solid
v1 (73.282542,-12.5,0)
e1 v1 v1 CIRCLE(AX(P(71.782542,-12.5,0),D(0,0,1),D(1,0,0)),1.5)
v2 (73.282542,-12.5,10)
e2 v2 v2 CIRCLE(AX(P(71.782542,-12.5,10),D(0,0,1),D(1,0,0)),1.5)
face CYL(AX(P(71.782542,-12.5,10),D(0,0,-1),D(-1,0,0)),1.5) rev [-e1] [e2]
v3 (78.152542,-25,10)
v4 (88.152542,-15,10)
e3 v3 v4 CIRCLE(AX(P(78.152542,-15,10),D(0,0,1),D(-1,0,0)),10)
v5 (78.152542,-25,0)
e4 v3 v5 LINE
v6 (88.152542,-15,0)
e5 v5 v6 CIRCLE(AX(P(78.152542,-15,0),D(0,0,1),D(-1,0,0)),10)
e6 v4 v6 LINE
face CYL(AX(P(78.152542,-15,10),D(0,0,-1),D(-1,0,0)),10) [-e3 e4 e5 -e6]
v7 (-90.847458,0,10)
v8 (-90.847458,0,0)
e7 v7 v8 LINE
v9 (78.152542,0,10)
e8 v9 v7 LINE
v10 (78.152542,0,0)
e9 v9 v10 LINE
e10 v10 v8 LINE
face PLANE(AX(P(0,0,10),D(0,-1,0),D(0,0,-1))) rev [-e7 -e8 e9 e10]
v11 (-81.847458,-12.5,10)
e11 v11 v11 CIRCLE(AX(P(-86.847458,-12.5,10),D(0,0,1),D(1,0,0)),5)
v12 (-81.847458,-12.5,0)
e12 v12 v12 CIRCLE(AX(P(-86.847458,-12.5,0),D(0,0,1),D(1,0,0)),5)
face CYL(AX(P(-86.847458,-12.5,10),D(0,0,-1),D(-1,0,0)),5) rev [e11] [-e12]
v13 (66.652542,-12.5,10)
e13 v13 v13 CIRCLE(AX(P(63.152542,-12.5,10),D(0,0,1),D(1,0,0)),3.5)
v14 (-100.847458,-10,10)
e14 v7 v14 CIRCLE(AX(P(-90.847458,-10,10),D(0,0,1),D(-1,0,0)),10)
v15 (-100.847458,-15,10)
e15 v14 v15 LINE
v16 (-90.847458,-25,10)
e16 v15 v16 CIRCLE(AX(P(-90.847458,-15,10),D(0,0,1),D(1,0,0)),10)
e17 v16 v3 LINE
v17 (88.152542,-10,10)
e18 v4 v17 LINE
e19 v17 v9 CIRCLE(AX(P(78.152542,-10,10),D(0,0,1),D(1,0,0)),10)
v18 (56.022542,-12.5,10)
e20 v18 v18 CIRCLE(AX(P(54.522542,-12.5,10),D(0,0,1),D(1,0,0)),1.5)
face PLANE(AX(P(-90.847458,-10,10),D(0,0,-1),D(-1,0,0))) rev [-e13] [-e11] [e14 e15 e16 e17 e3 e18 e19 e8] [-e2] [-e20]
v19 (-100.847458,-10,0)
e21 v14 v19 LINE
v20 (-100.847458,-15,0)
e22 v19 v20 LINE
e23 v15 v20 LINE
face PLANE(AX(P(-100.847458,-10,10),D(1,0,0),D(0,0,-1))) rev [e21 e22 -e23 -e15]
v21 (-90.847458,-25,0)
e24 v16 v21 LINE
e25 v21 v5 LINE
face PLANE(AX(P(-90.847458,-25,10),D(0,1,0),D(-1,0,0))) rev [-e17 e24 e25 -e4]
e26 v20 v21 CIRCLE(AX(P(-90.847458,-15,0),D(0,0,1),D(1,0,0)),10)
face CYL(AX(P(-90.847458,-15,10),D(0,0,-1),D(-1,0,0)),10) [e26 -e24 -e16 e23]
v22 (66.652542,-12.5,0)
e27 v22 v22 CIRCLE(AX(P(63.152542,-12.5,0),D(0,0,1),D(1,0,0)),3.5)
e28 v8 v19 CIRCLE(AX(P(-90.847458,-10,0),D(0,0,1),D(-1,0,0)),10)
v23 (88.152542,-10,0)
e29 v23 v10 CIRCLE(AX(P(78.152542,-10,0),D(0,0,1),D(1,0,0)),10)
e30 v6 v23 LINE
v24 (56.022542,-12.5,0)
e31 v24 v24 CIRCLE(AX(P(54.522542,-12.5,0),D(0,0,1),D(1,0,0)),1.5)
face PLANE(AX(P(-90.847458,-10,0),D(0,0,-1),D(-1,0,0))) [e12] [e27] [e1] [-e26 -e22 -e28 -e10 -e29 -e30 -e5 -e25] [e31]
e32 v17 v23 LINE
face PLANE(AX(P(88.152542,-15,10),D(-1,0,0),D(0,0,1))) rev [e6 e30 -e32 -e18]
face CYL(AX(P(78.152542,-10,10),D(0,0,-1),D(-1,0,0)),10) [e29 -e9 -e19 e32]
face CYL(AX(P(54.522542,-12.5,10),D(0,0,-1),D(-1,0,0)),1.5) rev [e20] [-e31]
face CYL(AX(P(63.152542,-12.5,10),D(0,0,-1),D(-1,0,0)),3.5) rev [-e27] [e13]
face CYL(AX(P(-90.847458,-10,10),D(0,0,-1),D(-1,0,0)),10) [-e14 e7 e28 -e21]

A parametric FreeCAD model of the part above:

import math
import FreeCAD as App
import Part
import Sketcher

V = App.Vector

doc = App.newDocument("Part")
body = doc.addObject("PartDesign::Body", "Body")

# Sketch on XY plane
sketch1 = doc.addObject("Sketcher::SketchObject", "Sketch")
body.addObject(sketch1)
sketch1.AttachmentSupport = (doc.XY_Plane, [""])
sketch1.MapMode = "FlatFace"
sketch1.addGeometry(Part.ArcOfCircle(Part.Circle(V(-90.8, -10, 0), V(0, 0, 1), 10), math.radians(90), math.radians(180)), False)
sketch1.addGeometry(Part.LineSegment(V(-100.8, -10, 0), V(-100.8, -15, 0)), False)
sketch1.addGeometry(Part.ArcOfCircle(Part.Circle(V(-90.8, -15, 0), V(0, 0, 1), 10), math.radians(180), math.radians(270)), False)
sketch1.addGeometry(Part.LineSegment(V(-90.8, -25, 0), V(78.2, -25, 0)), False)
sketch1.addGeometry(Part.ArcOfCircle(Part.Circle(V(78.2, -15, 0), V(0, 0, 1), 10), math.radians(-90), math.radians(0)), False)
sketch1.addGeometry(Part.LineSegment(V(88.2, -15, 0), V(88.2, -10, 0)), False)
sketch1.addGeometry(Part.ArcOfCircle(Part.Circle(V(78.2, -10, 0), V(0, 0, 1), 10), math.radians(0), math.radians(90)), False)
sketch1.addGeometry(Part.LineSegment(V(78.2, 0, 0), V(-90.8, 0, 0)), False)
sketch1.addGeometry(Part.Circle(V(-86.8, -12.5, 0), V(0, 0, 1), 5), False)
sketch1.addGeometry(Part.Circle(V(54.5, -12.5, 0), V(0, 0, 1), 1.5), False)
sketch1.addGeometry(Part.Circle(V(63.2, -12.5, 0), V(0, 0, 1), 3.5), False)
sketch1.addGeometry(Part.Circle(V(71.8, -12.5, 0), V(0, 0, 1), 1.5), False)
sketch1.addConstraint(Sketcher.Constraint("Tangent", 0, 2, 1, 1))
sketch1.addConstraint(Sketcher.Constraint("Tangent", 1, 2, 2, 1))
sketch1.addConstraint(Sketcher.Constraint("Tangent", 2, 2, 3, 1))
sketch1.addConstraint(Sketcher.Constraint("Tangent", 3, 2, 4, 1))
sketch1.addConstraint(Sketcher.Constraint("Tangent", 4, 2, 5, 1))
sketch1.addConstraint(Sketcher.Constraint("Tangent", 5, 2, 6, 1))
sketch1.addConstraint(Sketcher.Constraint("Tangent", 6, 2, 7, 1))
sketch1.addConstraint(Sketcher.Constraint("Tangent", 7, 2, 0, 1))
sketch1.addConstraint(Sketcher.Constraint("Vertical", 1))
sketch1.addConstraint(Sketcher.Constraint("Horizontal", 3))
sketch1.addConstraint(Sketcher.Constraint("Vertical", 5))
sketch1.addConstraint(Sketcher.Constraint("Horizontal", 7))
sketch1.addConstraint(Sketcher.Constraint("Equal", 0, 2))
sketch1.addConstraint(Sketcher.Constraint("Equal", 2, 4))
sketch1.addConstraint(Sketcher.Constraint("Equal", 4, 6))
sketch1.addConstraint(Sketcher.Constraint("Equal", 9, 11))
sketch1.addConstraint(Sketcher.Constraint("PointOnObject", 6, 2, -1))
sketch1.addConstraint(Sketcher.Constraint("Horizontal", 8, 3, 9, 3))
sketch1.addConstraint(Sketcher.Constraint("Horizontal", 9, 3, 10, 3))
sketch1.addConstraint(Sketcher.Constraint("Horizontal", 10, 3, 11, 3))
sketch1.addConstraint(Sketcher.Constraint("Diameter", 8, 10.0))
sketch1.addConstraint(Sketcher.Constraint("Diameter", 9, 3.0))
sketch1.addConstraint(Sketcher.Constraint("Diameter", 10, 7.0))
sketch1.addConstraint(Sketcher.Constraint("Radius", 0, 10.0))
sketch1.addConstraint(Sketcher.Constraint("DistanceX", 3, 1, 3, 2, 169.0))
sketch1.addConstraint(Sketcher.Constraint("DistanceY", 1, 2, 1, 1, 5.0))
sketch1.addConstraint(Sketcher.Constraint("DistanceX", 0, 3, 8, 3, 4.0))
sketch1.addConstraint(Sketcher.Constraint("DistanceX", 10, 3, 4, 3, 15.0))
sketch1.addConstraint(Sketcher.Constraint("DistanceY", 8, 3, -1, 1, 12.5))
sketch1.addConstraint(Sketcher.Constraint("DistanceX", 9, 3, 4, 3, 23.63))
sketch1.addConstraint(Sketcher.Constraint("DistanceX", 11, 3, 4, 3, 6.37))
sketch1.addConstraint(Sketcher.Constraint("DistanceX", 0, 3, -1, 1, 90.847458))
pad1 = doc.addObject("PartDesign::Pad", "Pad")
body.addObject(pad1)
pad1.Profile = sketch1
pad1.Length = 10

doc.recompute()
